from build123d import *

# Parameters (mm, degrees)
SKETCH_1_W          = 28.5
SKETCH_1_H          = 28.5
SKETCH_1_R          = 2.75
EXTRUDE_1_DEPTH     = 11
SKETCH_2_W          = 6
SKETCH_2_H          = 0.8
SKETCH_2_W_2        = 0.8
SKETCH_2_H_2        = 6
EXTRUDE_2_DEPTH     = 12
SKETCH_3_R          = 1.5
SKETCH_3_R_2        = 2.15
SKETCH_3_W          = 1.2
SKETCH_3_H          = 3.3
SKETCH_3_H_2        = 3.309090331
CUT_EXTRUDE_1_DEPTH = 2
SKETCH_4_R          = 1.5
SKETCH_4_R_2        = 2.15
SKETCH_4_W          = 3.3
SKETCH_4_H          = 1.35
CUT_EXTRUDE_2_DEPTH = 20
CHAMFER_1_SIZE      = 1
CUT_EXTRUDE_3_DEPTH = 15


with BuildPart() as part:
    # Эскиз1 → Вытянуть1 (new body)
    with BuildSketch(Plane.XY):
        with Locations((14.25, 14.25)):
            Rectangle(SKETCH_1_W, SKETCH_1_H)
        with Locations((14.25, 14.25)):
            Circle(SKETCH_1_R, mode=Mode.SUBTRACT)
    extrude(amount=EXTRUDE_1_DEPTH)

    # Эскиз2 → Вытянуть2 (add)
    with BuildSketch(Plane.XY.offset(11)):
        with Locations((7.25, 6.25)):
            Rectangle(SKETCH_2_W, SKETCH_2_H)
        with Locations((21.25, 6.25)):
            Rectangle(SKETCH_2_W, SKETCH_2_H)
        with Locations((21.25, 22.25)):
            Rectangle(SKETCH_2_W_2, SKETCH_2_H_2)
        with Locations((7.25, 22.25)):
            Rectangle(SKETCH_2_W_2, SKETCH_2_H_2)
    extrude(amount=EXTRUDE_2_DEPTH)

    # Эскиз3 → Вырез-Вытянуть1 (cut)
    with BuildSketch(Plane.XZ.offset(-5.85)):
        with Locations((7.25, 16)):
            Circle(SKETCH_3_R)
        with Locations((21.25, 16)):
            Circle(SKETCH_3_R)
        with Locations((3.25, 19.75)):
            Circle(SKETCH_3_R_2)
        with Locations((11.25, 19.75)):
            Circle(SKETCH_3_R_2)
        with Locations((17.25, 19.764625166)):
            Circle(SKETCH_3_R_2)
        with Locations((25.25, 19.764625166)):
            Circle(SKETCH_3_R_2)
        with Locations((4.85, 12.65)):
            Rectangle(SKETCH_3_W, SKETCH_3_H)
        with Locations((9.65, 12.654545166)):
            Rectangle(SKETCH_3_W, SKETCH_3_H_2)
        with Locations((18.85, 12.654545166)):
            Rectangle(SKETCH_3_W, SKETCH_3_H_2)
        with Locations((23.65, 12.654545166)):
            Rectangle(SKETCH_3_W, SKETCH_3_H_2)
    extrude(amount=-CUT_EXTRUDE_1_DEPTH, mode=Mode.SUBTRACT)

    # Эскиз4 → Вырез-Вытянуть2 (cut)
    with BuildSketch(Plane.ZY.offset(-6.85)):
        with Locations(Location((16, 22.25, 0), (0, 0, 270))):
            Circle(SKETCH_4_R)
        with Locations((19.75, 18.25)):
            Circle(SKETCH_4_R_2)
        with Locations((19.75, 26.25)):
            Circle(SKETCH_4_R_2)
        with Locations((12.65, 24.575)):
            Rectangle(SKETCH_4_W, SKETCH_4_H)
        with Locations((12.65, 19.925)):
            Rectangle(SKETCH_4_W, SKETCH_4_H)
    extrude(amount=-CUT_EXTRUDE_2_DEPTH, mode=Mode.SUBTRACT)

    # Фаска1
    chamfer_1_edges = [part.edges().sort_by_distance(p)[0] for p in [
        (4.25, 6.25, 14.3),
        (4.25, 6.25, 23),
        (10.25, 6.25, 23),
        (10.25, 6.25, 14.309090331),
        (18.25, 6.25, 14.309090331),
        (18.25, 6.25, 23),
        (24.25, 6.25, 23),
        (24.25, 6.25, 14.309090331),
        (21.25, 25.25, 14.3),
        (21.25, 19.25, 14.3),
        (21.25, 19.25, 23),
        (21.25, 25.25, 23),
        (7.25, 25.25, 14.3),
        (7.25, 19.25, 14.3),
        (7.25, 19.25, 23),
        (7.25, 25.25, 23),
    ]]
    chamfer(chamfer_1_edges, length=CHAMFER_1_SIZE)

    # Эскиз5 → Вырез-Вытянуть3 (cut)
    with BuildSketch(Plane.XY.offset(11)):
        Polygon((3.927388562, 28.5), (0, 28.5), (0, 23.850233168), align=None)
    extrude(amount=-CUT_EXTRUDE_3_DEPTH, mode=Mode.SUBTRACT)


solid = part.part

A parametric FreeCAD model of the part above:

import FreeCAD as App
import Part
import Sketcher


def edges_at(feature, points):
    """Names of the edges that pass closest to the given points."""
    edges = feature.Shape.Edges
    near = lambda p: min(range(len(edges)), key=lambda i: edges[i].distToShape(Part.Vertex(*p))[0])
    return sorted({f"Edge{near(p) + 1}" for p in points})


def add_polygon(sketch, points):
    """Adds a closed chain of lines whose ends are joined by coincident constraints."""
    first, n = sketch.GeometryCount, len(points)
    for a, b in zip(points, points[1:] + points[:1]):
        sketch.addGeometry(Part.LineSegment(App.Vector(*a, 0), App.Vector(*b, 0)), False)
    for i in range(n):
        sketch.addConstraint(Sketcher.Constraint("Coincident", first + i, 2, first + (i + 1) % n, 1))

doc = App.newDocument("Part")
body = doc.addObject("PartDesign::Body", "Body")

# Sketch on XY plane
sketch1 = body.newObject("Sketcher::SketchObject", "Sketch")
sketch1.AttachmentSupport = (doc.getObject("XY_Plane"), [""])
sketch1.MapMode = "FlatFace"
add_polygon(sketch1, [(0, 28.5), (0, 0), (28.5, 0), (28.5, 28.5)])  # lines 0-3
sketch1.addGeometry(Part.Circle(App.Vector(14.2, 14.2, 0), App.Vector(0, 0, 1), 2.8), False)  # 4
sketch1.addConstraint([
    Sketcher.Constraint("Vertical", 0),
    Sketcher.Constraint("Horizontal", 1),
    Sketcher.Constraint("Vertical", 2),
    Sketcher.Constraint("Horizontal", 3),
    Sketcher.Constraint("Coincident", 0, 2, -1, 1),
    Sketcher.Constraint("Equal", 3, 0),
    Sketcher.Constraint("Diameter", 4, 5.5),
    Sketcher.Constraint("DistanceX", 1, 1, 1, 2, 28.5),
    Sketcher.Constraint("DistanceX", -1, 1, 4, 3, 14.25),
    Sketcher.Constraint("DistanceY", -1, 1, 4, 3, 14.25),
])
pad1 = body.newObject("PartDesign::Pad", "Pad")
pad1.Profile = sketch1
pad1.Length = 11

# Sketch on XY plane
sketch2 = body.newObject("Sketcher::SketchObject", "Sketch001")
sketch2.AttachmentSupport = (doc.getObject("XY_Plane"), [""])
sketch2.MapMode = "FlatFace"
sketch2.AttachmentOffset = App.Placement(App.Vector(0, 0, 11), App.Rotation())
add_polygon(sketch2, [(4.2, 6.7), (4.2, 5.8), (10.2, 5.8), (10.2, 6.7)])  # lines 0-3
add_polygon(sketch2, [(18.2, 6.7), (18.2, 5.8), (24.2, 5.8), (24.2, 6.7)])  # lines 4-7
add_polygon(sketch2, [(20.9, 25.2), (20.9, 19.2), (21.6, 19.2), (21.6, 25.2)])  # lines 8-11
add_polygon(sketch2, [(6.8, 25.2), (6.8, 19.2), (7.7, 19.2), (7.7, 25.2)])  # lines 12-15
sketch2.addConstraint([
    Sketcher.Constraint("Vertical", 0),
    Sketcher.Constraint("Horizontal", 1),
    Sketcher.Constraint("Vertical", 2),
    Sketcher.Constraint("Horizontal", 3),
    Sketcher.Constraint("Vertical", 4),
    Sketcher.Constraint("Horizontal", 5),
    Sketcher.Constraint("Vertical", 6),
    Sketcher.Constraint("Horizontal", 7),
    Sketcher.Constraint("Vertical", 8),
    Sketcher.Constraint("Horizontal", 9),
    Sketcher.Constraint("Vertical", 10),
    Sketcher.Constraint("Horizontal", 11),
    Sketcher.Constraint("Vertical", 12),
    Sketcher.Constraint("Horizontal", 13),
    Sketcher.Constraint("Vertical", 14),
    Sketcher.Constraint("Horizontal", 15),
    Sketcher.Constraint("Horizontal", 1, 2, 4, 2),
    Sketcher.Constraint("Horizontal", 3, 2, 6, 2),
    Sketcher.Constraint("Horizontal", 9, 2, 12, 2),
    Sketcher.Constraint("Horizontal", 11, 2, 14, 2),
    Sketcher.Constraint("Equal", 3, 5),
    Sketcher.Constraint("Equal", 11, 13),
    Sketcher.Constraint("Equal", 15, 0),
    Sketcher.Constraint("Equal", 7, 8),
    Sketcher.Constraint("DistanceX", 1, 1, 1, 2, 6.0),
    Sketcher.Constraint("DistanceX", 9, 1, 9, 2, 0.8),
    Sketcher.Constraint("DistanceX", 1, 2, 4, 2, 8.0),
    Sketcher.Constraint("DistanceX", 12, 2, 8, 2, 14.0),
    Sketcher.Constraint("DistanceX", 7, 2, 8, 2, 2.6),
    Sketcher.Constraint("DistanceY", 7, 2, 8, 2, 12.6),
    Sketcher.Constraint("DistanceX", -1, 1, 0, 2, 4.25),
    Sketcher.Constraint("DistanceY", -1, 1, 0, 2, 5.85),
])
pad2 = body.newObject("PartDesign::Pad", "Pad001")
pad2.Profile = sketch2
pad2.Length = 12

# Sketch on XZ plane
sketch3 = body.newObject("Sketcher::SketchObject", "Sketch002")
sketch3.AttachmentSupport = (doc.getObject("XZ_Plane"), [""])
sketch3.MapMode = "FlatFace"
sketch3.AttachmentOffset = App.Placement(App.Vector(0, 0, -5.85), App.Rotation())
sketch3.addGeometry(Part.Circle(App.Vector(7.2, 16, 0), App.Vector(0, 0, 1), 1.5), False)  # 0
sketch3.addGeometry(Part.Circle(App.Vector(21.2, 16, 0), App.Vector(0, 0, 1), 1.5), False)  # 1
sketch3.addGeometry(Part.Circle(App.Vector(3.2, 19.8, 0), App.Vector(0, 0, 1), 2.1), False)  # 2
sketch3.addGeometry(Part.Circle(App.Vector(11.2, 19.8, 0), App.Vector(0, 0, 1), 2.1), False)  # 3
sketch3.addGeometry(Part.Circle(App.Vector(17.2, 19.8, 0), App.Vector(0, 0, 1), 2.1), False)  # 4
sketch3.addGeometry(Part.Circle(App.Vector(25.2, 19.8, 0), App.Vector(0, 0, 1), 2.1), False)  # 5
add_polygon(sketch3, [(4.2, 14.3), (4.2, 11), (5.5, 11), (5.5, 14.3)])  # lines 6-9
add_polygon(sketch3, [(9.1, 14.3), (9.1, 11), (10.2, 11), (10.2, 14.3)])  # lines 10-13
add_polygon(sketch3, [(18.2, 14.3), (18.2, 11), (19.4, 11), (19.4, 14.3)])  # lines 14-17
add_polygon(sketch3, [(23.1, 14.3), (23.1, 11), (24.2, 11), (24.2, 14.3)])  # lines 18-21
sketch3.addConstraint([
    Sketcher.Constraint("Vertical", 6),
    Sketcher.Constraint("Horizontal", 7),
    Sketcher.Constraint("Vertical", 8),
    Sketcher.Constraint("Horizontal", 9),
    Sketcher.Constraint("Vertical", 10),
    Sketcher.Constraint("Horizontal", 11),
    Sketcher.Constraint("Vertical", 12),
    Sketcher.Constraint("Horizontal", 13),
    Sketcher.Constraint("Vertical", 14),
    Sketcher.Constraint("Horizontal", 15),
    Sketcher.Constraint("Vertical", 16),
    Sketcher.Constraint("Horizontal", 17),
    Sketcher.Constraint("Vertical", 18),
    Sketcher.Constraint("Horizontal", 19),
    Sketcher.Constraint("Vertical", 20),
    Sketcher.Constraint("Horizontal", 21),
    Sketcher.Constraint("Equal", 0, 1),
    Sketcher.Constraint("Equal", 2, 3),
    Sketcher.Constraint("Equal", 3, 4),
    Sketcher.Constraint("Equal", 4, 5),
    Sketcher.Constraint("Horizontal", 0, 3, 1, 3),
    Sketcher.Constraint("Horizontal", 2, 3, 3, 3),
    Sketcher.Constraint("Horizontal", 4, 3, 5, 3),
    Sketcher.Constraint("Horizontal", 7, 2, 10, 2),
    Sketcher.Constraint("Horizontal", 11, 2, 14, 2),
    Sketcher.Constraint("Horizontal", 13, 2, 16, 2),
    Sketcher.Constraint("Horizontal", 15, 2, 18, 2),
    Sketcher.Constraint("Horizontal", 17, 2, 20, 2),
    Sketcher.Constraint("Equal", 9, 11),
    Sketcher.Constraint("Equal", 13, 15),
    Sketcher.Constraint("Equal", 17, 19),
    Sketcher.Constraint("Diameter", 0, 3.0),
    Sketcher.Constraint("Diameter", 2, 4.3),
    Sketcher.Constraint("DistanceX", 7, 1, 7, 2, 1.2),
    Sketcher.Constraint("DistanceY", 6, 2, 6, 1, 3.3),
    Sketcher.Constraint("DistanceY", -1, 1, 0, 3, 16.0),
    Sketcher.Constraint("DistanceY", -1, 1, 6, 2, 11.0),
    Sketcher.Constraint("DistanceX", 0, 3, 1, 3, 14.0),
    Sketcher.Constraint("DistanceX", 2, 3, 0, 3, 4.0),
    Sketcher.Constraint("DistanceX", 0, 3, 3, 3, 4.0),
    Sketcher.Constraint("DistanceX", 4, 3, 1, 3, 4.0),
    Sketcher.Constraint("DistanceX", 1, 3, 5, 3, 4.0),
    Sketcher.Constraint("DistanceX", 6, 2, 0, 3, 3.0),
    Sketcher.Constraint("DistanceX", 0, 3, 11, 2, 3.0),
    Sketcher.Constraint("DistanceX", 14, 2, 1, 3, 3.0),
    Sketcher.Constraint("DistanceX", 1, 3, 19, 2, 3.0),
    Sketcher.Constraint("DistanceX", -1, 1, 0, 3, 7.25),
    Sketcher.Constraint("DistanceY", -1, 1, 2, 3, 19.75),
    Sketcher.Constraint("DistanceY", 10, 2, 10, 1, 3.30909),
    Sketcher.Constraint("DistanceY", -1, 1, 4, 3, 19.764625),
])
pocket1 = body.newObject("PartDesign::Pocket", "Pocket")
pocket1.Profile = sketch3
pocket1.Length = 2

# Sketch on YZ plane
sketch4 = body.newObject("Sketcher::SketchObject", "Sketch003")
sketch4.AttachmentSupport = (doc.getObject("YZ_Plane"), [""])
sketch4.MapMode = "FlatFace"
sketch4.AttachmentOffset = App.Placement(App.Vector(0, 0, 6.85), App.Rotation())
sketch4.addGeometry(Part.Circle(App.Vector(22.2, 16, 0), App.Vector(0, 0, 1), 1.5), False)  # 0
sketch4.addGeometry(Part.Circle(App.Vector(18.2, 19.8, 0), App.Vector(0, 0, 1), 2.1), False)  # 1
sketch4.addGeometry(Part.Circle(App.Vector(26.2, 19.8, 0), App.Vector(0, 0, 1), 2.1), False)  # 2
add_polygon(sketch4, [(25.2, 11), (23.9, 11), (23.9, 14.3), (25.2, 14.3)])  # lines 3-6
add_polygon(sketch4, [(20.6, 11), (19.2, 11), (19.2, 14.3), (20.6, 14.3)])  # lines 7-10
sketch4.addConstraint([
    Sketcher.Constraint("Horizontal", 3),
    Sketcher.Constraint("Vertical", 4),
    Sketcher.Constraint("Horizontal", 5),
    Sketcher.Constraint("Vertical", 6),
    Sketcher.Constraint("Horizontal", 7),
    Sketcher.Constraint("Vertical", 8),
    Sketcher.Constraint("Horizontal", 9),
    Sketcher.Constraint("Vertical", 10),
    Sketcher.Constraint("Equal", 1, 2),
    Sketcher.Constraint("Horizontal", 1, 3, 2, 3),
    Sketcher.Constraint("Horizontal", 6, 2, 7, 2),
    Sketcher.Constraint("Horizontal", 5, 2, 8, 2),
    Sketcher.Constraint("Equal", 5, 7),
    Sketcher.Constraint("Diameter", 0, 3.0),
    Sketcher.Constraint("Diameter", 1, 4.3),
    Sketcher.Constraint("DistanceY", 4, 1, 4, 2, 3.3),
    Sketcher.Constraint("DistanceY", -1, 1, 0, 3, 16.0),
    Sketcher.Constraint("DistanceY", -1, 1, 3, 2, 11.0),
    Sketcher.Constraint("DistanceX", 1, 3, 0, 3, 4.0),
    Sketcher.Constraint("DistanceX", 0, 3, 2, 3, 4.0),
    Sketcher.Constraint("DistanceX", 0, 3, 5, 2, 3.0),
    Sketcher.Constraint("DistanceX", 7, 2, 0, 3, 3.0),
    Sketcher.Constraint("DistanceX", 3, 2, 3, 1, 1.35),
    Sketcher.Constraint("DistanceX", -1, 1, 3, 2, 23.9),
    Sketcher.Constraint("DistanceY", -1, 1, 1, 3, 19.75),
])
pocket2 = body.newObject("PartDesign::Pocket", "Pocket001")
pocket2.Profile = sketch4
pocket2.Length = 20
pocket2.Reversed = True
doc.recompute()

chamfer = body.newObject("PartDesign::Chamfer", "Chamfer")
chamfer.Base = (pocket2, edges_at(pocket2, [
    (4.25, 6.25, 14.3),
    (4.25, 6.25, 23),
    (10.25, 6.25, 23),
    (10.25, 6.25, 14.309),
    (18.25, 6.25, 14.309),
    (18.25, 6.25, 23),
    (24.25, 6.25, 23),
    (24.25, 6.25, 14.309),
    (21.25, 25.25, 14.3),
    (21.25, 19.25, 14.3),
    (21.25, 19.25, 23),
    (21.25, 25.25, 23),
    (7.25, 25.25, 14.3),
    (7.25, 19.25, 14.3),
    (7.25, 19.25, 23),
    (7.25, 25.25, 23),
]))
chamfer.Size = 1

# Sketch on XY plane
sketch5 = body.newObject("Sketcher::SketchObject", "Sketch004")
sketch5.AttachmentSupport = (doc.getObject("XY_Plane"), [""])
sketch5.MapMode = "FlatFace"
sketch5.AttachmentOffset = App.Placement(App.Vector(0, 0, 11), App.Rotation())
add_polygon(sketch5, [(3.9, 28.5), (0, 28.5), (0, 23.9)])  # lines 0-2
sketch5.addConstraint([
    Sketcher.Constraint("Horizontal", 0),
    Sketcher.Constraint("Vertical", 1),
    Sketcher.Constraint("PointOnObject", 0, 2, -2),
    Sketcher.Constraint("DistanceY", -1, 1, 0, 2, 28.5),
    Sketcher.Constraint("DistanceX", 0, 2, 0, 1, 3.927389),
    Sketcher.Constraint("DistanceY", 1, 2, 1, 1, 4.649767),
])
pocket3 = body.newObject("PartDesign::Pocket", "Pocket002")
pocket3.Profile = sketch5
pocket3.Length = 15

doc.recompute()
